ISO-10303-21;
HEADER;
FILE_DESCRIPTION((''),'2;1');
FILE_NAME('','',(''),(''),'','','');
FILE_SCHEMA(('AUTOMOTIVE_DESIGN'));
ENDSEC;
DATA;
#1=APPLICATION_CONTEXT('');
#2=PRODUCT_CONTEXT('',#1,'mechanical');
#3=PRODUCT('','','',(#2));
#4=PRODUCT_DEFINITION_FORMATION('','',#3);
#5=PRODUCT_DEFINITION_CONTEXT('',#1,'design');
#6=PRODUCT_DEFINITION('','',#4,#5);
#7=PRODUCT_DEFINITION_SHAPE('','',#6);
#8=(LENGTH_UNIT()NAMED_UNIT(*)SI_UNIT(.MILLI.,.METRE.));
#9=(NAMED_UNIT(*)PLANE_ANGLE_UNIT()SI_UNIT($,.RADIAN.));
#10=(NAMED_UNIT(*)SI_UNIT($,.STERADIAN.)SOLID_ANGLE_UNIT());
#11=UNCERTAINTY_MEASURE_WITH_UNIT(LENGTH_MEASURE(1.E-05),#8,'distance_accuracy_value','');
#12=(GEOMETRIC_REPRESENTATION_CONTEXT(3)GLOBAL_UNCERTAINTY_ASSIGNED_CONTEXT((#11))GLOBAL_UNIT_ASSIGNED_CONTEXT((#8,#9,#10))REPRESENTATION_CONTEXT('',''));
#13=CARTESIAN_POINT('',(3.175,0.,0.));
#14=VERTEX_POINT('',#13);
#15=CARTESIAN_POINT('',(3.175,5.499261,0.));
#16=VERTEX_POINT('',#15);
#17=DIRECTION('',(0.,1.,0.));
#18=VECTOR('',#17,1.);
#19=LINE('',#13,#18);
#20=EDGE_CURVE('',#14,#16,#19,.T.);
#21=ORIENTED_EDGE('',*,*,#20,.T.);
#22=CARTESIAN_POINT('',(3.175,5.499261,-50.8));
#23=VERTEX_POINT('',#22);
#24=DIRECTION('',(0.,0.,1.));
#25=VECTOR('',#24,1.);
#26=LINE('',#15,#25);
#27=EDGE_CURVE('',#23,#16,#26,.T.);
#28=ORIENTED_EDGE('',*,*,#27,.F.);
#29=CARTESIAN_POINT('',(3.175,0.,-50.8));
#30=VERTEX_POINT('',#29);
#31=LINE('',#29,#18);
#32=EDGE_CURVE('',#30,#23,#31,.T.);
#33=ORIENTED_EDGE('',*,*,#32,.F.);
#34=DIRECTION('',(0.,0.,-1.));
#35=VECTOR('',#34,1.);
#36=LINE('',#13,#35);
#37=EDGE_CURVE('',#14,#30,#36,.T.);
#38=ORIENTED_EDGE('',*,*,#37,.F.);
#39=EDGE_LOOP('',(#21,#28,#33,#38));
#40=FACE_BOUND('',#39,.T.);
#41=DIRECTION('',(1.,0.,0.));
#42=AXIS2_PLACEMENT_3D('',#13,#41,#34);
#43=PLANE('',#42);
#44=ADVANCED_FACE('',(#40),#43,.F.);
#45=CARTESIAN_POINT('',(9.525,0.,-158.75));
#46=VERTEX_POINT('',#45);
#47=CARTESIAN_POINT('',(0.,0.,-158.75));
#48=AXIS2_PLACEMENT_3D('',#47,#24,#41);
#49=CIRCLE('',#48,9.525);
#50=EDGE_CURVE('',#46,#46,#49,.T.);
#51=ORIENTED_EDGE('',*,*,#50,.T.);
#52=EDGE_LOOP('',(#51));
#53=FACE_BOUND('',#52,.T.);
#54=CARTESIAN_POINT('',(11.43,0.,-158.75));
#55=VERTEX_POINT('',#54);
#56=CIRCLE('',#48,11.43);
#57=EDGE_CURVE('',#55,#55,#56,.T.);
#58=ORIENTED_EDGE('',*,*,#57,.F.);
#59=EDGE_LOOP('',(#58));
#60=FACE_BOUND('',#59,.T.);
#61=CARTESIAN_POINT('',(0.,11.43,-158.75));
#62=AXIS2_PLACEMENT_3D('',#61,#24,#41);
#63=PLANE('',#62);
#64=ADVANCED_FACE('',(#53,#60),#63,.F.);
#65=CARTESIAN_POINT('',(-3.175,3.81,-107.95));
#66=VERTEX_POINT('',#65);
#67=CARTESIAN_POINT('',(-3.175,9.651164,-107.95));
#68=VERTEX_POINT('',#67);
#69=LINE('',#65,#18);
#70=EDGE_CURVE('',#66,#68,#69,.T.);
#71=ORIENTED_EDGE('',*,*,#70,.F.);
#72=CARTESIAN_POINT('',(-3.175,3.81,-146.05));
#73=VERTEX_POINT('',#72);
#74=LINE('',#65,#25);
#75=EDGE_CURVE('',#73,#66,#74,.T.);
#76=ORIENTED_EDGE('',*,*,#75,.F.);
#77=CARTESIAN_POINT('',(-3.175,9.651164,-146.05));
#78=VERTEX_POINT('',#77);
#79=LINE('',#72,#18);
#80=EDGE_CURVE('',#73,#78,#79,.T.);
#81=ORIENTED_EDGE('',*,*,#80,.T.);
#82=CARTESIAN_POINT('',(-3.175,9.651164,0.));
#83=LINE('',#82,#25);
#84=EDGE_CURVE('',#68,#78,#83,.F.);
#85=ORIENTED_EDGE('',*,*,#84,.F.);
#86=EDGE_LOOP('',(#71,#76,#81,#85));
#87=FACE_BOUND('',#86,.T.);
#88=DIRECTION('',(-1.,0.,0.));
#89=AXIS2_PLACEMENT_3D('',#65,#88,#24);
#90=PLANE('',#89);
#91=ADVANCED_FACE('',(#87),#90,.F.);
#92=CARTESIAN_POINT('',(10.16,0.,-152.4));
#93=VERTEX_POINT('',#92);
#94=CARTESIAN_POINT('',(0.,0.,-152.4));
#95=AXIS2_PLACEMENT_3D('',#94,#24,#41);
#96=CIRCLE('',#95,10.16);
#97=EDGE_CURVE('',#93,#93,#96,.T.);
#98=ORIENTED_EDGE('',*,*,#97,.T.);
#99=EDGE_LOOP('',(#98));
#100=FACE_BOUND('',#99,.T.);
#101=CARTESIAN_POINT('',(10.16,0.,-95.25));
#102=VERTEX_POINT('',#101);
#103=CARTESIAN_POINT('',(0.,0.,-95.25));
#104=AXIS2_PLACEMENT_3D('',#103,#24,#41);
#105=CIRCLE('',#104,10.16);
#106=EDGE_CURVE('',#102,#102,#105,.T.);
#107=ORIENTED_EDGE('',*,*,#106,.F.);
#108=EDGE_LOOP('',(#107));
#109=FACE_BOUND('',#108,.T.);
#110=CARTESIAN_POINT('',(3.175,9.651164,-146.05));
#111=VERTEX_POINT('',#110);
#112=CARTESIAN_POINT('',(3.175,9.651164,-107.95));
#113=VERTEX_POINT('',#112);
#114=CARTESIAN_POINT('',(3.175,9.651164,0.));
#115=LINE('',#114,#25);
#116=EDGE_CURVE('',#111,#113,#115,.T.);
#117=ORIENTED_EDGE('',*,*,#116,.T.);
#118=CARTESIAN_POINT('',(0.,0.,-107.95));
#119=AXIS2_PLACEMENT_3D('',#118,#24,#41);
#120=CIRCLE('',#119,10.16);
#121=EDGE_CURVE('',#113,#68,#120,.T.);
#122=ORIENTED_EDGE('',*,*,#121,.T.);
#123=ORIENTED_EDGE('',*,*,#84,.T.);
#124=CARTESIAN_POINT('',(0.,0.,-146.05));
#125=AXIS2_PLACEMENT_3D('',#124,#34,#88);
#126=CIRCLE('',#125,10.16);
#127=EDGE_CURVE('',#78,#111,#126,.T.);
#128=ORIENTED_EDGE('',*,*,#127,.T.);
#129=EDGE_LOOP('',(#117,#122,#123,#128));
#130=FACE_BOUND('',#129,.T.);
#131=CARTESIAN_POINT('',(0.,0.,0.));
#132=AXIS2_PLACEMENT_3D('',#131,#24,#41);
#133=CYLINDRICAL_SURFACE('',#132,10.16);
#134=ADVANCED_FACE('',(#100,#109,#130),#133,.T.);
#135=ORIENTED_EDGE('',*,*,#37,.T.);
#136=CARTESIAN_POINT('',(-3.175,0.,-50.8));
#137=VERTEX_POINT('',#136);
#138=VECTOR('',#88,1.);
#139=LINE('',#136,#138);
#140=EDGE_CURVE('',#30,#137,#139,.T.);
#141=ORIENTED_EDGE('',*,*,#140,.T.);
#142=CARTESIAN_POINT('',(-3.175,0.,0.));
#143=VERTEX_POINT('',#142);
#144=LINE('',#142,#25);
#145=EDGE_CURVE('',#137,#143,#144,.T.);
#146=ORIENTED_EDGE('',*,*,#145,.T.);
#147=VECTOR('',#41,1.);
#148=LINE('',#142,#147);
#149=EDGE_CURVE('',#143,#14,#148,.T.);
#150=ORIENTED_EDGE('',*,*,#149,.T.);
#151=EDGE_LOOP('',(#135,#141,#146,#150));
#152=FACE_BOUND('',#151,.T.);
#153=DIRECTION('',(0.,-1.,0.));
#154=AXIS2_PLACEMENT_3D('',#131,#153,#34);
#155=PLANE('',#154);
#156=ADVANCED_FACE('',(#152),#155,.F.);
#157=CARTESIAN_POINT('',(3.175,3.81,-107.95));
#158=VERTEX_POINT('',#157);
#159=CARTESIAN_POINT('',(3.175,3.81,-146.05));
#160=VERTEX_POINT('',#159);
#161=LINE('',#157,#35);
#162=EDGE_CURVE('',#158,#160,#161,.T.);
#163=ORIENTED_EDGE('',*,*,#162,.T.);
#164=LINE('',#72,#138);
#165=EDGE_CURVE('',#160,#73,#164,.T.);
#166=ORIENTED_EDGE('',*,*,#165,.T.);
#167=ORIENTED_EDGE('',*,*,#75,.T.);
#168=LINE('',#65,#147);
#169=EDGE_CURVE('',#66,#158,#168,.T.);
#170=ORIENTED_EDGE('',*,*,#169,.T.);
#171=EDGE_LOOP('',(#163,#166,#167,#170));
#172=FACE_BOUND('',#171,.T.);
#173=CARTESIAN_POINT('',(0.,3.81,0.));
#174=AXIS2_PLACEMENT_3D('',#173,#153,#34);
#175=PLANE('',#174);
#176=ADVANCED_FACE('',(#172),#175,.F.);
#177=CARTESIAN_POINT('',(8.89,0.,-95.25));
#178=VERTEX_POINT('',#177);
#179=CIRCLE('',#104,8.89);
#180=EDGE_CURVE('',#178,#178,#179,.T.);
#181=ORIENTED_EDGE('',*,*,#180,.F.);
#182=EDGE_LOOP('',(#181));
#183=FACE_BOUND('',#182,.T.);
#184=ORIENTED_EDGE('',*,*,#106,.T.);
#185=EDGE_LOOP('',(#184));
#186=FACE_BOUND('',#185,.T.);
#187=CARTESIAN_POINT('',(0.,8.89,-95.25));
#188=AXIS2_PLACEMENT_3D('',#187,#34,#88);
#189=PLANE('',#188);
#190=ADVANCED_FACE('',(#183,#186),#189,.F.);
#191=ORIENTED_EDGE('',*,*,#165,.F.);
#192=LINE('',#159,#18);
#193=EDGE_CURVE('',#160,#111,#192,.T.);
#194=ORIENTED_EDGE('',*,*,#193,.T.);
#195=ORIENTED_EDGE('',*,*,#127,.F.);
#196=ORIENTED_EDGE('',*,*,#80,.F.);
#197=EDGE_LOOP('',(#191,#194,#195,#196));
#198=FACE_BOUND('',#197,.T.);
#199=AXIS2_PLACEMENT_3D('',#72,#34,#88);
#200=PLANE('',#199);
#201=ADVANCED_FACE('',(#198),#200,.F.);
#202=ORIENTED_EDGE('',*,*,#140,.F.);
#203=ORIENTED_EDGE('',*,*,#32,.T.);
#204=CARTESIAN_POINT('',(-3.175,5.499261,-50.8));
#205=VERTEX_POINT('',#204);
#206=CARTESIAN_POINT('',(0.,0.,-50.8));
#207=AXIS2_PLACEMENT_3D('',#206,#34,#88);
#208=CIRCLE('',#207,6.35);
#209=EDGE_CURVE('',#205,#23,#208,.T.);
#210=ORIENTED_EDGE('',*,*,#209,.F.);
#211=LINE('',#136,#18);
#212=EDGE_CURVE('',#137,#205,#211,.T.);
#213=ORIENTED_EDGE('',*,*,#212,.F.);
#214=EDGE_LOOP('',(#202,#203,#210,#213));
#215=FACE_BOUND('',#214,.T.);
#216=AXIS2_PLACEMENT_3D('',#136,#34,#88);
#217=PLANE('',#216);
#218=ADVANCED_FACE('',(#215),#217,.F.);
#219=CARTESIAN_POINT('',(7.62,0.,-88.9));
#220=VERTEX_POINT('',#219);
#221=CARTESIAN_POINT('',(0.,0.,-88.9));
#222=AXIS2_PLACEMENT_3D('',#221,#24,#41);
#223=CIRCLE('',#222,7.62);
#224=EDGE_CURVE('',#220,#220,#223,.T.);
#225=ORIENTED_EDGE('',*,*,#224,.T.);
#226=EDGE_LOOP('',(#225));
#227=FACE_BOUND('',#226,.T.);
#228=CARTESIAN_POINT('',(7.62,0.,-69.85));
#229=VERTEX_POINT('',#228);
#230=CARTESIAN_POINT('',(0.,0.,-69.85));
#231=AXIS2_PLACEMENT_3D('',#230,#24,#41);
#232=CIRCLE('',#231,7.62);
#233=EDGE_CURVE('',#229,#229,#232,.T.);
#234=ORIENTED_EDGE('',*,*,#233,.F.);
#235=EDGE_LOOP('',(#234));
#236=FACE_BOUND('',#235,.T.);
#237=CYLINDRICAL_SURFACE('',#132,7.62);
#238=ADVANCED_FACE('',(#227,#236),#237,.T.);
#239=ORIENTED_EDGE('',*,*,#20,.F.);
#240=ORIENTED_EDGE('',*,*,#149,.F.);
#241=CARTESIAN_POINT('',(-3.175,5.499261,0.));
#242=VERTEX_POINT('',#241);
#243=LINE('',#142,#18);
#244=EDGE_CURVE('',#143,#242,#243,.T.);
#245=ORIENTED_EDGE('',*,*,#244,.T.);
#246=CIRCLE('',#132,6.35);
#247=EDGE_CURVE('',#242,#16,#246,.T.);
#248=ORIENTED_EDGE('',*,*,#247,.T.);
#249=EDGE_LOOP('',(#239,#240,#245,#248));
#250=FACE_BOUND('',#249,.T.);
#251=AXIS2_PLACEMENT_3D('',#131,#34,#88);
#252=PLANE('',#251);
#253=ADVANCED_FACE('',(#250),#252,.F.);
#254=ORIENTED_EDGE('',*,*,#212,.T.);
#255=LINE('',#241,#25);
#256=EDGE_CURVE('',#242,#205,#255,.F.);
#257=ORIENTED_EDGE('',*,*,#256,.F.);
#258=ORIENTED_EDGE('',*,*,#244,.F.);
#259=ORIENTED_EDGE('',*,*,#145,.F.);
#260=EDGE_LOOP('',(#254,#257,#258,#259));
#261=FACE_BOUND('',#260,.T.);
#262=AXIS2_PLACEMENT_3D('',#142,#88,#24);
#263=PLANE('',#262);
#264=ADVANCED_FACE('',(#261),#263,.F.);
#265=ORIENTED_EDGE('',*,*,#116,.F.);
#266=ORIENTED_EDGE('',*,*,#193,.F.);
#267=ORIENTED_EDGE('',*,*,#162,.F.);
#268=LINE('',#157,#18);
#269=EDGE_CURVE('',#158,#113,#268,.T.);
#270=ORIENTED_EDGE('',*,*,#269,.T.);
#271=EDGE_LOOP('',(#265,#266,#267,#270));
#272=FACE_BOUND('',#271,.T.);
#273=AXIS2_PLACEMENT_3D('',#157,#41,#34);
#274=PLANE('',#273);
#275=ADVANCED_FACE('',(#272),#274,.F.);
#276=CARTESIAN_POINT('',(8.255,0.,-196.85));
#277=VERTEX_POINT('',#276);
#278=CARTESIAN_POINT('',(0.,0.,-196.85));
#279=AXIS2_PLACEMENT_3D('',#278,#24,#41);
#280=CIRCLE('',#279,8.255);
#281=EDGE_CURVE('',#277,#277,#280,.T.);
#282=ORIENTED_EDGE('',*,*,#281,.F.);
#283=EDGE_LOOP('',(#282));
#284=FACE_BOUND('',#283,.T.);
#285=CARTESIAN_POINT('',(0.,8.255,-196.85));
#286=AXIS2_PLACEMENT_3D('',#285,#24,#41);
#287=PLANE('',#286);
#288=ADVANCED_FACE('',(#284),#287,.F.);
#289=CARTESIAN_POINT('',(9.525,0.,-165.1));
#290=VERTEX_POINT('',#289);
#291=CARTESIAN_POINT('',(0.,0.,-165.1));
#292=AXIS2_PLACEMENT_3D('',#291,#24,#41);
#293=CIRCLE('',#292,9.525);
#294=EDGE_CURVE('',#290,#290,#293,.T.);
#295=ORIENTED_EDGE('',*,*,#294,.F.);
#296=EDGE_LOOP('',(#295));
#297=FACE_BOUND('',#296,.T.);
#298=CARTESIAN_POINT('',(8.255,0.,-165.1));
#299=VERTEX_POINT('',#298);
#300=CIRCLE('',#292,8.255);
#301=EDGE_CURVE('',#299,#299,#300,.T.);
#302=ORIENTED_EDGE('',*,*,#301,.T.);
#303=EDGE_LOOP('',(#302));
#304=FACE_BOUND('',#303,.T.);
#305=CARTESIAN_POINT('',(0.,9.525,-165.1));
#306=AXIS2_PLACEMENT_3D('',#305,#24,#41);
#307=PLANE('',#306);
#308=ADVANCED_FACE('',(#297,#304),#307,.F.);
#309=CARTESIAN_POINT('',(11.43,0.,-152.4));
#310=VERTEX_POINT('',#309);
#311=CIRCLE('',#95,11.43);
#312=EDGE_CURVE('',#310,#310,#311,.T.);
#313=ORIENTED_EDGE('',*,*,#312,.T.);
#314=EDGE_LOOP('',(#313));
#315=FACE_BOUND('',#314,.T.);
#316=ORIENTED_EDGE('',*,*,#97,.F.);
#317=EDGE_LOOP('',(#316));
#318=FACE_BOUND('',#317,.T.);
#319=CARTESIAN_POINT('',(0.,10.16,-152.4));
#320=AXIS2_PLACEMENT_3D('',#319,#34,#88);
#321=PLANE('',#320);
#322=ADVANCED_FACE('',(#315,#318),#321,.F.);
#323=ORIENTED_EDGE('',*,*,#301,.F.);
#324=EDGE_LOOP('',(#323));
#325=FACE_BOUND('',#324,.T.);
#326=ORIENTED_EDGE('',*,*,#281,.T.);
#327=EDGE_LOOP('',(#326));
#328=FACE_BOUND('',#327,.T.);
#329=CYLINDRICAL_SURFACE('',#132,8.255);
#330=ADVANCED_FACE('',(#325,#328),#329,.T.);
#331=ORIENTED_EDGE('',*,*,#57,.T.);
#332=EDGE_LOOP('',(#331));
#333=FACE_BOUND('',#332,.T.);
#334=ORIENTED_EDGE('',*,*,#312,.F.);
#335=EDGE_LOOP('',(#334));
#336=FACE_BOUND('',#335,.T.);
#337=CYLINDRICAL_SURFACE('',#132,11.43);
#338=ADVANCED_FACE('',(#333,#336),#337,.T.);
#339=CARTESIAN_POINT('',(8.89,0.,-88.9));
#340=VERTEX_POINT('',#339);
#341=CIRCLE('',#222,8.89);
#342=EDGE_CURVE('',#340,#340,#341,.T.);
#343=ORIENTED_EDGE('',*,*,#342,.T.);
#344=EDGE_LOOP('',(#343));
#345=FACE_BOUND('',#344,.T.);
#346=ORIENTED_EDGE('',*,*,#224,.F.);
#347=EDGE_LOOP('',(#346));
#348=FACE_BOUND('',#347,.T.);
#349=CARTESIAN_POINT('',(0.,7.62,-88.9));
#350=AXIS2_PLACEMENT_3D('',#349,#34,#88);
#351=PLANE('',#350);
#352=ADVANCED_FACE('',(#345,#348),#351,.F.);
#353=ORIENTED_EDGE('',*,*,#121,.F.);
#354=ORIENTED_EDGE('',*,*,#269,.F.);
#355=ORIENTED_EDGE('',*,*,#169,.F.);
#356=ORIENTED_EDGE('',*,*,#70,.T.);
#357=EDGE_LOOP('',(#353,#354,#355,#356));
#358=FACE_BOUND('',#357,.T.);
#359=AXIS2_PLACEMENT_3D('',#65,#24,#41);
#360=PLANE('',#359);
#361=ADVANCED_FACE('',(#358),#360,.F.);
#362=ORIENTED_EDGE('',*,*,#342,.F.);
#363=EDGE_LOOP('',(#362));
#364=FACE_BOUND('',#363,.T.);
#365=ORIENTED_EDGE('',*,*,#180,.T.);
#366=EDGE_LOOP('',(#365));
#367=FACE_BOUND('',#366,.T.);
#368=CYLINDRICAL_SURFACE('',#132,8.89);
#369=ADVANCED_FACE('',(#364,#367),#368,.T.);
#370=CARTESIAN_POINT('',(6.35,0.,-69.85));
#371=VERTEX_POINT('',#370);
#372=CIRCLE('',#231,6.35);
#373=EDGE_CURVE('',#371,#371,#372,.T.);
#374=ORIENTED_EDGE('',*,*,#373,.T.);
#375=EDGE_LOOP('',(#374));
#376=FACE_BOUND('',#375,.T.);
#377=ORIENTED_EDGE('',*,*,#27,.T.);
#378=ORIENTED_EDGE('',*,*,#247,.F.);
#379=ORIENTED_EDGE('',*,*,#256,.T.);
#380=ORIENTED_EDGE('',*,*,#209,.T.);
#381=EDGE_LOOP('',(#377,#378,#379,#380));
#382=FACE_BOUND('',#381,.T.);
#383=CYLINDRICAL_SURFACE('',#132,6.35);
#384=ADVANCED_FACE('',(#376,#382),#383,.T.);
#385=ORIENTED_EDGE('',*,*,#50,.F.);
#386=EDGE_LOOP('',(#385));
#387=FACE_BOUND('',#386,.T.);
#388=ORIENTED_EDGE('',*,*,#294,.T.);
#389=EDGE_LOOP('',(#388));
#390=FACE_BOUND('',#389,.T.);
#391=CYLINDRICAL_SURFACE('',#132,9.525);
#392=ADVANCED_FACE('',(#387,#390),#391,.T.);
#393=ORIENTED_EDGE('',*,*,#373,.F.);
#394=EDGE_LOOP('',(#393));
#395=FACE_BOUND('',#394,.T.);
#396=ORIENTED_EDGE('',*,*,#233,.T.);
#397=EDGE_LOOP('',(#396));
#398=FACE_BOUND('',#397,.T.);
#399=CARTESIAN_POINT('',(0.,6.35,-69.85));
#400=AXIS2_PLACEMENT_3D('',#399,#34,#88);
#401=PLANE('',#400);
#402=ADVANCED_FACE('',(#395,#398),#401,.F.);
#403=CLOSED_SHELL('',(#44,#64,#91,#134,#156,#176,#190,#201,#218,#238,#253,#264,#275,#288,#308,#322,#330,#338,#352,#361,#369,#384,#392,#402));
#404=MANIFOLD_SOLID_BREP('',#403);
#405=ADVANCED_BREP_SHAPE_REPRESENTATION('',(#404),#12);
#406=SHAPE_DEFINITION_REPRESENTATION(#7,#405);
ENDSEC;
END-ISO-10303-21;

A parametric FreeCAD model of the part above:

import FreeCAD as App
import Part
import Sketcher
Q = App.Units.Quantity


def add_polygon(sketch, points):
    """Adds a closed chain of lines whose ends are joined by coincident constraints."""
    first, n = sketch.GeometryCount, len(points)
    for a, b in zip(points, points[1:] + points[:1]):
        sketch.addGeometry(Part.LineSegment(App.Vector(*a, 0), App.Vector(*b, 0)), False)
    for i in range(n):
        sketch.addConstraint(Sketcher.Constraint("Coincident", first + i, 2, first + (i + 1) % n, 1))

doc = App.newDocument("Part")
body = doc.addObject("PartDesign::Body", "Body")

# Sketch on YZ plane
sketch1 = body.newObject("Sketcher::SketchObject", "Sketch")
sketch1.AttachmentSupport = (doc.getObject("YZ_Plane"), [""])
sketch1.MapMode = "FlatFace"
add_polygon(sketch1, [(6.3, 0), (0, 0), (0, -196.8), (8.3, -196.8), (8.3, -165.1), (9.5, -165.1), (9.5, -158.8), (11.4, -158.8), (11.4, -152.4), (10.2, -152.4), (10.2, -95.2), (8.9, -95.2), (8.9, -88.9), (7.6, -88.9), (7.6, -69.8), (6.3, -69.8)])  # lines 0-15
sketch1.addConstraint([
    Sketcher.Constraint("Horizontal", 0),
    Sketcher.Constraint("Vertical", 1),
    Sketcher.Constraint("Horizontal", 2),
    Sketcher.Constraint("Vertical", 3),
    Sketcher.Constraint("Horizontal", 4),
    Sketcher.Constraint("Vertical", 5),
    Sketcher.Constraint("Horizontal", 6),
    Sketcher.Constraint("Vertical", 7),
    Sketcher.Constraint("Horizontal", 8),
    Sketcher.Constraint("Vertical", 9),
    Sketcher.Constraint("Horizontal", 10),
    Sketcher.Constraint("Vertical", 11),
    Sketcher.Constraint("Horizontal", 12),
    Sketcher.Constraint("Vertical", 13),
    Sketcher.Constraint("Horizontal", 14),
    Sketcher.Constraint("Vertical", 15),
    Sketcher.Constraint("Coincident", 0, 2, -1, 1),
    Sketcher.Constraint("Equal", 4, 8),
    Sketcher.Constraint("Equal", 8, 10),
    Sketcher.Constraint("Equal", 10, 12),
    Sketcher.Constraint("Equal", 12, 14),
    Sketcher.Constraint("Equal", 0, 5),
    Sketcher.Constraint("Equal", 5, 7),
    Sketcher.Constraint("Equal", 7, 11),
    Sketcher.Constraint("DistanceY", 7, 2, -1, 1, Q("6 in")),
    Sketcher.Constraint("DistanceY", 10, 2, 13, 2, Q("1 in")),
    Sketcher.Constraint("DistanceX", 0, 2, 0, 1, Q("0.25 in")),
    Sketcher.Constraint("DistanceX", 4, 1, 4, 2, Q("0.05 in")),
    Sketcher.Constraint("DistanceY", 1, 2, 1, 1, Q("7.75 in")),
    Sketcher.Constraint("DistanceY", 9, 1, 9, 2, Q("2.25 in")),
    Sketcher.Constraint("DistanceX", 2, 1, 2, 2, Q("0.325 in")),
])
revolution = body.newObject("PartDesign::Revolution", "Revolution")
revolution.Profile = sketch1
revolution.ReferenceAxis = (sketch1, ["V_Axis"])
revolution.Angle = 360

# Sketch on XZ plane
sketch2 = body.newObject("Sketcher::SketchObject", "Sketch001")
sketch2.AttachmentSupport = (doc.getObject("XZ_Plane"), [""])
sketch2.MapMode = "FlatFace"
sketch2.AttachmentOffset = App.Placement(App.Vector(0, 0, -0.25 * 25.4), App.Rotation())
add_polygon(sketch2, [(-3, -51), (-3, 0), (3, 0), (3, -51)])  # lines 0-3
sketch2.addConstraint([
    Sketcher.Constraint("Vertical", 0),
    Sketcher.Constraint("Horizontal", 1),
    Sketcher.Constraint("Vertical", 2),
    Sketcher.Constraint("Horizontal", 3),
    Sketcher.Constraint("Symmetric", 0, 2, 1, 2, -1, 1),
    Sketcher.Constraint("DistanceY", 0, 1, 0, 2, Q("2 in")),
    Sketcher.Constraint("DistanceX", 1, 1, 1, 2, Q("0.25 in")),
])
pocket1 = body.newObject("PartDesign::Pocket", "Pocket")
pocket1.Profile = sketch2
pocket1.Length = Q("0.25 in")
pocket1.Reversed = True

# Sketch on XZ plane
sketch3 = body.newObject("Sketcher::SketchObject", "Sketch002")
sketch3.AttachmentSupport = (doc.getObject("XZ_Plane"), [""])
sketch3.MapMode = "FlatFace"
sketch3.AttachmentOffset = App.Placement(App.Vector(0, 0, -0.4 * 25.4), App.Rotation())
add_polygon(sketch3, [(-3, -146), (-3, -108), (3, -108), (3, -146)])  # lines 0-3
sketch3.addConstraint([
    Sketcher.Constraint("Vertical", 0),
    Sketcher.Constraint("Horizontal", 1),
    Sketcher.Constraint("Vertical", 2),
    Sketcher.Constraint("Horizontal", 3),
    Sketcher.Constraint("DistanceY", 0, 1, 0, 2, Q("1.5 in")),
    Sketcher.Constraint("DistanceX", 1, 1, 1, 2, Q("0.25 in")),
    Sketcher.Constraint("DistanceY", 0, 2, -1, 1, Q("4.25 in")),
    Sketcher.Constraint("DistanceX", 0, 2, -1, 1, Q("0.125 in")),
])
pocket2 = body.newObject("PartDesign::Pocket", "Pocket001")
pocket2.Profile = sketch3
pocket2.Length = Q("0.25 in")
pocket2.Reversed = True

doc.recompute()
